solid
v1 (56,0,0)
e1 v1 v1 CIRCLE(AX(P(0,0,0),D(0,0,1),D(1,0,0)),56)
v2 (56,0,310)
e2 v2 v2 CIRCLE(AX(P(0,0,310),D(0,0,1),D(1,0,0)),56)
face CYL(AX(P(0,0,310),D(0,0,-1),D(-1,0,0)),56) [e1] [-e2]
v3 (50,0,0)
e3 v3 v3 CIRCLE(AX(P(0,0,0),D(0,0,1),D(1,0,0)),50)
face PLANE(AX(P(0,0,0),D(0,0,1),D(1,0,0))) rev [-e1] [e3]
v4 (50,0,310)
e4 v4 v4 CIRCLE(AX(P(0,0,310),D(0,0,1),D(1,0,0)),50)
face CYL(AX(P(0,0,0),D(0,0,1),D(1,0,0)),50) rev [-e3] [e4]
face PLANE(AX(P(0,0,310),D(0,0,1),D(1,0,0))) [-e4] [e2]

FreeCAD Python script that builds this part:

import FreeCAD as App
import Part
import Sketcher

V = App.Vector
Q = App.Units.Quantity

doc = App.newDocument("Part")
body = doc.addObject("PartDesign::Body", "Body")

sketch1 = doc.addObject("Sketcher::SketchObject", "Sketch")
body.addObject(sketch1)
sketch1.AttachmentSupport = (doc.XY_Plane, [""])
sketch1.MapMode = "FlatFace"
sketch1.addGeometry(Part.Circle(V(0, 0, 0), V(0, 0, 1), 56), False)
sketch1.addConstraint(Sketcher.Constraint("Coincident", 0, 3, -1, 1))
sketch1.addConstraint(Sketcher.Constraint("Diameter", 0, Q("112 mm")))
pad1 = doc.addObject("PartDesign::Pad", "Pad")
body.addObject(pad1)
pad1.Profile = sketch1
pad1.Length = 310

sketch2 = doc.addObject("Sketcher::SketchObject", "Sketch001")
body.addObject(sketch2)
sketch2.AttachmentSupport = (doc.XY_Plane, [""])
sketch2.MapMode = "FlatFace"
sketch2.AttachmentOffset = App.Placement(V(0, 0, 310), App.Rotation())
sketch2.addGeometry(Part.Circle(V(0, 0, 0), V(0, 0, 1), 50), False)
sketch2.addConstraint(Sketcher.Constraint("Coincident", 0, 3, -1, 1))
sketch2.addConstraint(Sketcher.Constraint("Diameter", 0, Q("100 mm")))
pocket1 = doc.addObject("PartDesign::Pocket", "Pocket")
body.addObject(pocket1)
pocket1.Profile = sketch2
pocket1.Length = 310

doc.recompute()
